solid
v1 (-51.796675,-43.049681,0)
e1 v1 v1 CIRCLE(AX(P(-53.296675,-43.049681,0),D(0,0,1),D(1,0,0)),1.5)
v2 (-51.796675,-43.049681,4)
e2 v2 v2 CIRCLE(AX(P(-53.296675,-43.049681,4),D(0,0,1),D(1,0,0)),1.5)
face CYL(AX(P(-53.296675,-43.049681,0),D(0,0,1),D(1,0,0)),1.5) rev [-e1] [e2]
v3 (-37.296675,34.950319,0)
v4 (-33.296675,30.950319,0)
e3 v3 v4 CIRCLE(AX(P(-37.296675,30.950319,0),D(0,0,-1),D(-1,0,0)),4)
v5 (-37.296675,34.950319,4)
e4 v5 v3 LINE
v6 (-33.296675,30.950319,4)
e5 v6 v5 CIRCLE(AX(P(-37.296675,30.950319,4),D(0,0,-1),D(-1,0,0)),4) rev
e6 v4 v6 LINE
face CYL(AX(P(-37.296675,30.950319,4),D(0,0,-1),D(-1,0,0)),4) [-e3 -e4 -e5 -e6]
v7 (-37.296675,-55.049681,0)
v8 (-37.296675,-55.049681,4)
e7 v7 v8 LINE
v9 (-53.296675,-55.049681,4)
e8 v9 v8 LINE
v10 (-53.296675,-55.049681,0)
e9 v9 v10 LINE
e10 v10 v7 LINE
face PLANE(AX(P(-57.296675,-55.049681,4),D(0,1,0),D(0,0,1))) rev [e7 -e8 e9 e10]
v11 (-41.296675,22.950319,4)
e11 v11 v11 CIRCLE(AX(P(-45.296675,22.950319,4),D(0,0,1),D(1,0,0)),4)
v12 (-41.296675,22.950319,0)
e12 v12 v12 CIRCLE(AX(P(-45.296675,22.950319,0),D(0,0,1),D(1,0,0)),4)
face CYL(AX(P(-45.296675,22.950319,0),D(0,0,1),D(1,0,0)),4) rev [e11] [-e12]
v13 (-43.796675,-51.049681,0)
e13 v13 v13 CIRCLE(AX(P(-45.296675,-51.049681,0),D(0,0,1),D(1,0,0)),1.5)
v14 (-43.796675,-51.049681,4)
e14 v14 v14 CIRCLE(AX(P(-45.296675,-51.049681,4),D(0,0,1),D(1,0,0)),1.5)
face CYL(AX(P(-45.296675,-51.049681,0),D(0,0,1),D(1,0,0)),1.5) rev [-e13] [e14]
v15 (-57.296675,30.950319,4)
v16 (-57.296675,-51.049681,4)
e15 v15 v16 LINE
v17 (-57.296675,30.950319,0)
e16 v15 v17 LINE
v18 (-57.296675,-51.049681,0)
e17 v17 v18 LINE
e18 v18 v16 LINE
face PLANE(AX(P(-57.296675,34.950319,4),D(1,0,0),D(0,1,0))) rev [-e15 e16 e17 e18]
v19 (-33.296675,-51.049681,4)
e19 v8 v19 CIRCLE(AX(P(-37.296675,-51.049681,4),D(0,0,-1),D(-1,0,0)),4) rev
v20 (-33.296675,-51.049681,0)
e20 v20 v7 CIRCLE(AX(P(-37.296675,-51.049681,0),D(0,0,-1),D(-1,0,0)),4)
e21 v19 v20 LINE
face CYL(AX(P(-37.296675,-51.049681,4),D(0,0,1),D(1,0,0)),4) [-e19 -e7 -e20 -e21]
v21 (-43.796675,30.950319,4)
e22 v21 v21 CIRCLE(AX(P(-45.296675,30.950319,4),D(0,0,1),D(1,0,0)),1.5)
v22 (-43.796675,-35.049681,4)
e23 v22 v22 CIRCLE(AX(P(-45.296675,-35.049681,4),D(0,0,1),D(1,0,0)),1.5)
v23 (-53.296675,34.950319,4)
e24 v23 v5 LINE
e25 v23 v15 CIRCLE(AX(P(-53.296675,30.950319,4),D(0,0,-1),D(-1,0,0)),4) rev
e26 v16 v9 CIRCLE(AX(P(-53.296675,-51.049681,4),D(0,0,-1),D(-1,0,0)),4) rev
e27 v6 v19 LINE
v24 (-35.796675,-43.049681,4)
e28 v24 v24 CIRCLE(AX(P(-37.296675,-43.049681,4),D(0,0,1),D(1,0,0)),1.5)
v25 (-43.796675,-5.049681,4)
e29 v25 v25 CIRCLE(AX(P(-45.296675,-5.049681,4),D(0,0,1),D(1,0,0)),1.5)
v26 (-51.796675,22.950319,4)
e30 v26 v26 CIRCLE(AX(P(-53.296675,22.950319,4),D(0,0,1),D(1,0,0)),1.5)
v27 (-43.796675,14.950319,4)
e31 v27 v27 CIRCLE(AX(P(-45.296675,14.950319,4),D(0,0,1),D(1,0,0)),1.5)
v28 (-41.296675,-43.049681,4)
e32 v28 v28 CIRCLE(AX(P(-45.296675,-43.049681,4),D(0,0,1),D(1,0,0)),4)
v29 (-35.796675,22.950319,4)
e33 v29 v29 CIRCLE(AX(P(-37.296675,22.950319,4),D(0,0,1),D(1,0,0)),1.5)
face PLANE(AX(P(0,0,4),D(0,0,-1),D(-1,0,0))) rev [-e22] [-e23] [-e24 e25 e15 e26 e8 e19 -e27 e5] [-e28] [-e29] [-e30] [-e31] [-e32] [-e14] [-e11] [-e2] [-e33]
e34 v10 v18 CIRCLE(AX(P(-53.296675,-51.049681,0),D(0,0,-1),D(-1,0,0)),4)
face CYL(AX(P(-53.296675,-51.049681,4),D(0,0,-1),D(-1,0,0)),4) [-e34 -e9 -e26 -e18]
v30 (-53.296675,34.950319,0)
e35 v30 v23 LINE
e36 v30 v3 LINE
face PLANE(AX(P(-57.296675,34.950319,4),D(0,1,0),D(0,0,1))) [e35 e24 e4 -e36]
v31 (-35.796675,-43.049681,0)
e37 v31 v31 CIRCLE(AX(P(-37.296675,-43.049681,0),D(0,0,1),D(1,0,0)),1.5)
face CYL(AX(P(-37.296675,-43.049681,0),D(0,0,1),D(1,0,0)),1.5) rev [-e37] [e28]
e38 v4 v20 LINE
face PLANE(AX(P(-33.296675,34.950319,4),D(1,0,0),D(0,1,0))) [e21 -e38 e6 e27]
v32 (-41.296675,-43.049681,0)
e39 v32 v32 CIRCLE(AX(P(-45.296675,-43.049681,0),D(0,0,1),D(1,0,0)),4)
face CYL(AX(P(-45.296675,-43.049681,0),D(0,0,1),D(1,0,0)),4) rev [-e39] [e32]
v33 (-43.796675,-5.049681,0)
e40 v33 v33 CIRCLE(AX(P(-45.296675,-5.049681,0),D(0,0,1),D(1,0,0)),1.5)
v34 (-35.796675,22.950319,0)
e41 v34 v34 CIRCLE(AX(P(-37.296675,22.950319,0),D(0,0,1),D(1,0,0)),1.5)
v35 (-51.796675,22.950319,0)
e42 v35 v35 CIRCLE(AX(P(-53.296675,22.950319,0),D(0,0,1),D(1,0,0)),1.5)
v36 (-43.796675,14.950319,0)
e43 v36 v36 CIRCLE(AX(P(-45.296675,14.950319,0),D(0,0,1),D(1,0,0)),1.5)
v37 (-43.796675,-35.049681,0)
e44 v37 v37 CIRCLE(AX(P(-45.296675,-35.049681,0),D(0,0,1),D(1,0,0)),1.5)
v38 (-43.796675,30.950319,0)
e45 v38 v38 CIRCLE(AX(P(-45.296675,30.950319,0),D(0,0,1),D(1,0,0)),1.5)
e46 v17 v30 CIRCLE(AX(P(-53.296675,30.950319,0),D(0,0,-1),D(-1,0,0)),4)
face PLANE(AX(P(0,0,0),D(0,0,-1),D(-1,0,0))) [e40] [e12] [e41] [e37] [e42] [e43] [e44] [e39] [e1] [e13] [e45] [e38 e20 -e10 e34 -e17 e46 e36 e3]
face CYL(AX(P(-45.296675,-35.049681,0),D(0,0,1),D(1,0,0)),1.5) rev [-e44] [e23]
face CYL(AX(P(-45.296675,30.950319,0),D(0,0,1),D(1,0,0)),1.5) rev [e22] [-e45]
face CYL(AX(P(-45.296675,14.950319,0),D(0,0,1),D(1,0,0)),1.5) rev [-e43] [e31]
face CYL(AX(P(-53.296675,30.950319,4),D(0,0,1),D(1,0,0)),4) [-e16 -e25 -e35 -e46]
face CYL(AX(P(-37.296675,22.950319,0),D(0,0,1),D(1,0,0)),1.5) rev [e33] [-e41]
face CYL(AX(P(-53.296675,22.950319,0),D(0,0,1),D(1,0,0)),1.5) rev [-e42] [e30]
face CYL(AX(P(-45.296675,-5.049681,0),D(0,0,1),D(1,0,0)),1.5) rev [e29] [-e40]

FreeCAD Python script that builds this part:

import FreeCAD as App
import Part
import Sketcher


def edges_at(feature, points):
    """Names of the edges that pass closest to the given points."""
    edges = feature.Shape.Edges
    near = lambda p: min(range(len(edges)), key=lambda i: edges[i].distToShape(Part.Vertex(*p))[0])
    return sorted({f"Edge{near(p) + 1}" for p in points})


def add_polygon(sketch, points):
    """Adds a closed chain of lines whose ends are joined by coincident constraints."""
    first, n = sketch.GeometryCount, len(points)
    for a, b in zip(points, points[1:] + points[:1]):
        sketch.addGeometry(Part.LineSegment(App.Vector(*a, 0), App.Vector(*b, 0)), False)
    for i in range(n):
        sketch.addConstraint(Sketcher.Constraint("Coincident", first + i, 2, first + (i + 1) % n, 1))

doc = App.newDocument("Part")
body = doc.addObject("PartDesign::Body", "Body")

# Sketch on XY plane
sketch1 = doc.addObject("Sketcher::SketchObject", "Sketch")
body.addObject(sketch1)
sketch1.AttachmentSupport = (doc.XY_Plane, [""])
sketch1.MapMode = "FlatFace"
add_polygon(sketch1, [(-57, 35), (-57, -55), (-33, -55), (-33, 35)])  # lines 0-3
sketch1.addConstraint(Sketcher.Constraint("Vertical", 0))
sketch1.addConstraint(Sketcher.Constraint("Horizontal", 1))
sketch1.addConstraint(Sketcher.Constraint("Vertical", 2))
sketch1.addConstraint(Sketcher.Constraint("Horizontal", 3))
sketch1.addConstraint(Sketcher.Constraint("DistanceX", 1, 1, 1, 2, 24.0))
sketch1.addConstraint(Sketcher.Constraint("DistanceY", 0, 2, 0, 1, 90.0))
sketch1.addConstraint(Sketcher.Constraint("DistanceY", 0, 2, -1, 1, 55.049681))
sketch1.addConstraint(Sketcher.Constraint("DistanceX", 0, 2, -1, 1, 57.296675))
pad1 = doc.addObject("PartDesign::Pad", "Pad")
body.addObject(pad1)
pad1.Profile = sketch1
pad1.Length = 4

# Sketch on XY plane
sketch2 = doc.addObject("Sketcher::SketchObject", "Sketch001")
body.addObject(sketch2)
sketch2.AttachmentSupport = (doc.XY_Plane, [""])
sketch2.MapMode = "FlatFace"
sketch2.AttachmentOffset = App.Placement(App.Vector(0, 0, 4), App.Rotation())
sketch2.addGeometry(Part.Circle(App.Vector(-45.3, -43, 0), App.Vector(0, 0, 1), 4), False)
sketch2.addGeometry(Part.Circle(App.Vector(-37.3, -43, 0), App.Vector(0, 0, 1), 1.5), False)
sketch2.addGeometry(Part.Circle(App.Vector(-45.3, -51, 0), App.Vector(0, 0, 1), 1.5), False)
sketch2.addGeometry(Part.Circle(App.Vector(-53.3, -43, 0), App.Vector(0, 0, 1), 1.5), False)
sketch2.addGeometry(Part.Circle(App.Vector(-45.3, -35, 0), App.Vector(0, 0, 1), 1.5), False)
sketch2.addGeometry(Part.Circle(App.Vector(-45.3, 31, 0), App.Vector(0, 0, 1), 1.5), False)
sketch2.addGeometry(Part.Circle(App.Vector(-37.3, 23, 0), App.Vector(0, 0, 1), 1.5), False)
sketch2.addGeometry(Part.Circle(App.Vector(-45.3, 15, 0), App.Vector(0, 0, 1), 1.5), False)
sketch2.addGeometry(Part.Circle(App.Vector(-53.3, 23, 0), App.Vector(0, 0, 1), 1.5), False)
sketch2.addGeometry(Part.Circle(App.Vector(-45.3, 23, 0), App.Vector(0, 0, 1), 4), False)
sketch2.addConstraint(Sketcher.Constraint("Equal", 1, 2))
sketch2.addConstraint(Sketcher.Constraint("Equal", 2, 3))
sketch2.addConstraint(Sketcher.Constraint("Equal", 3, 4))
sketch2.addConstraint(Sketcher.Constraint("Equal", 4, 5))
sketch2.addConstraint(Sketcher.Constraint("Equal", 5, 6))
sketch2.addConstraint(Sketcher.Constraint("Equal", 6, 7))
sketch2.addConstraint(Sketcher.Constraint("Equal", 7, 8))
sketch2.addConstraint(Sketcher.Constraint("Equal", 0, 9))
sketch2.addConstraint(Sketcher.Constraint("Horizontal", 0, 3, 1, 3))
sketch2.addConstraint(Sketcher.Constraint("Horizontal", 1, 3, 3, 3))
sketch2.addConstraint(Sketcher.Constraint("Horizontal", 6, 3, 8, 3))
sketch2.addConstraint(Sketcher.Constraint("Horizontal", 8, 3, 9, 3))
sketch2.addConstraint(Sketcher.Constraint("Vertical", 0, 3, 2, 3))
sketch2.addConstraint(Sketcher.Constraint("Vertical", 2, 3, 4, 3))
sketch2.addConstraint(Sketcher.Constraint("Vertical", 4, 3, 5, 3))
sketch2.addConstraint(Sketcher.Constraint("Vertical", 1, 3, 6, 3))
sketch2.addConstraint(Sketcher.Constraint("Vertical", 5, 3, 7, 3))
sketch2.addConstraint(Sketcher.Constraint("Vertical", 3, 3, 8, 3))
sketch2.addConstraint(Sketcher.Constraint("Vertical", 7, 3, 9, 3))
sketch2.addConstraint(Sketcher.Constraint("Diameter", 0, 8.0))
sketch2.addConstraint(Sketcher.Constraint("Diameter", 1, 3.0))
sketch2.addConstraint(Sketcher.Constraint("DistanceX", 0, 3, 1, 3, 8.0))
sketch2.addConstraint(Sketcher.Constraint("DistanceY", 2, 3, 0, 3, 8.0))
sketch2.addConstraint(Sketcher.Constraint("DistanceX", 3, 3, 0, 3, 8.0))
sketch2.addConstraint(Sketcher.Constraint("DistanceY", 0, 3, 4, 3, 8.0))
sketch2.addConstraint(Sketcher.Constraint("DistanceY", 4, 3, 5, 3, 66.0))
sketch2.addConstraint(Sketcher.Constraint("DistanceY", 6, 3, 5, 3, 8.0))
sketch2.addConstraint(Sketcher.Constraint("DistanceY", 7, 3, 6, 3, 8.0))
sketch2.addConstraint(Sketcher.Constraint("DistanceY", 0, 3, -1, 1, 43.049681))
sketch2.addConstraint(Sketcher.Constraint("DistanceX", 0, 3, -1, 1, 45.296675))
pocket1 = doc.addObject("PartDesign::Pocket", "Pocket")
body.addObject(pocket1)
pocket1.Profile = sketch2
pocket1.Length = 4
doc.recompute()

fillet = doc.addObject("PartDesign::Fillet", "Fillet")
body.addObject(fillet)
fillet.Base = (pocket1, edges_at(pocket1, [
    (-57.297, 34.95, 2),
    (-57.297, -55.05, 2),
    (-33.297, -55.05, 2),
    (-33.297, 34.95, 2),
]))
fillet.Radius = 4

# Sketch on XY plane
sketch3 = doc.addObject("Sketcher::SketchObject", "Sketch002")
body.addObject(sketch3)
sketch3.AttachmentSupport = (doc.XY_Plane, [""])
sketch3.MapMode = "FlatFace"
sketch3.AttachmentOffset = App.Placement(App.Vector(0, 0, 4), App.Rotation())
sketch3.addGeometry(Part.Circle(App.Vector(-45.3, -5, 0), App.Vector(0, 0, 1), 1.5), False)
sketch3.addConstraint(Sketcher.Constraint("Diameter", 0, 3.0))
sketch3.addConstraint(Sketcher.Constraint("DistanceY", 0, 3, -1, 1, 5.049681))
sketch3.addConstraint(Sketcher.Constraint("DistanceX", 0, 3, -1, 1, 45.296675))
pocket2 = doc.addObject("PartDesign::Pocket", "Pocket001")
body.addObject(pocket2)
pocket2.Profile = sketch3
pocket2.Length = 4

doc.recompute()
